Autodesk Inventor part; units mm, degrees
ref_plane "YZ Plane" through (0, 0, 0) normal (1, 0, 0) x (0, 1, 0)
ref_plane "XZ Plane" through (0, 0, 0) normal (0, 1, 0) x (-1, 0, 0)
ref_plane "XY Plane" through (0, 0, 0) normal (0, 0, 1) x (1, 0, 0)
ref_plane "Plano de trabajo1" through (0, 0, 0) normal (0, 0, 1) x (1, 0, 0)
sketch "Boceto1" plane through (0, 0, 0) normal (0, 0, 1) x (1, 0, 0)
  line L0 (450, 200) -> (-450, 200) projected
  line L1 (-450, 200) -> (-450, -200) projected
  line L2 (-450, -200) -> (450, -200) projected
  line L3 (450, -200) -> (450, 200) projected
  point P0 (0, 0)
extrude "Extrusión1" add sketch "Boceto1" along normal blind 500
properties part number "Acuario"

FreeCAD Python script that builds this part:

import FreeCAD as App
import Part
import Sketcher


def add_polygon(sketch, points):
    """Adds a closed chain of lines whose ends are joined by coincident constraints."""
    first, n = sketch.GeometryCount, len(points)
    for a, b in zip(points, points[1:] + points[:1]):
        sketch.addGeometry(Part.LineSegment(App.Vector(*a, 0), App.Vector(*b, 0)), False)
    for i in range(n):
        sketch.addConstraint(Sketcher.Constraint("Coincident", first + i, 2, first + (i + 1) % n, 1))

doc = App.newDocument("Part")
body = doc.addObject("PartDesign::Body", "Body")

# Sketch on XY plane
sketch1 = body.newObject("Sketcher::SketchObject", "Sketch")
sketch1.AttachmentSupport = (doc.getObject("XY_Plane"), [""])
sketch1.MapMode = "FlatFace"
add_polygon(sketch1, [(450, -200), (450, 200), (-450, 200), (-450, -200)])  # lines 0-3
sketch1.addConstraint(Sketcher.Constraint("Vertical", 0))
sketch1.addConstraint(Sketcher.Constraint("Horizontal", 1))
sketch1.addConstraint(Sketcher.Constraint("Vertical", 2))
sketch1.addConstraint(Sketcher.Constraint("Horizontal", 3))
sketch1.addConstraint(Sketcher.Constraint("Symmetric", 0, 2, 2, 2, -1, 1))
sketch1.addConstraint(Sketcher.Constraint("DistanceX", 1, 2, 1, 1, 900.0))
sketch1.addConstraint(Sketcher.Constraint("DistanceY", 0, 1, 0, 2, 400.0))
pad1 = body.newObject("PartDesign::Pad", "Pad")
pad1.Profile = sketch1
pad1.Length = 500

doc.recompute()
